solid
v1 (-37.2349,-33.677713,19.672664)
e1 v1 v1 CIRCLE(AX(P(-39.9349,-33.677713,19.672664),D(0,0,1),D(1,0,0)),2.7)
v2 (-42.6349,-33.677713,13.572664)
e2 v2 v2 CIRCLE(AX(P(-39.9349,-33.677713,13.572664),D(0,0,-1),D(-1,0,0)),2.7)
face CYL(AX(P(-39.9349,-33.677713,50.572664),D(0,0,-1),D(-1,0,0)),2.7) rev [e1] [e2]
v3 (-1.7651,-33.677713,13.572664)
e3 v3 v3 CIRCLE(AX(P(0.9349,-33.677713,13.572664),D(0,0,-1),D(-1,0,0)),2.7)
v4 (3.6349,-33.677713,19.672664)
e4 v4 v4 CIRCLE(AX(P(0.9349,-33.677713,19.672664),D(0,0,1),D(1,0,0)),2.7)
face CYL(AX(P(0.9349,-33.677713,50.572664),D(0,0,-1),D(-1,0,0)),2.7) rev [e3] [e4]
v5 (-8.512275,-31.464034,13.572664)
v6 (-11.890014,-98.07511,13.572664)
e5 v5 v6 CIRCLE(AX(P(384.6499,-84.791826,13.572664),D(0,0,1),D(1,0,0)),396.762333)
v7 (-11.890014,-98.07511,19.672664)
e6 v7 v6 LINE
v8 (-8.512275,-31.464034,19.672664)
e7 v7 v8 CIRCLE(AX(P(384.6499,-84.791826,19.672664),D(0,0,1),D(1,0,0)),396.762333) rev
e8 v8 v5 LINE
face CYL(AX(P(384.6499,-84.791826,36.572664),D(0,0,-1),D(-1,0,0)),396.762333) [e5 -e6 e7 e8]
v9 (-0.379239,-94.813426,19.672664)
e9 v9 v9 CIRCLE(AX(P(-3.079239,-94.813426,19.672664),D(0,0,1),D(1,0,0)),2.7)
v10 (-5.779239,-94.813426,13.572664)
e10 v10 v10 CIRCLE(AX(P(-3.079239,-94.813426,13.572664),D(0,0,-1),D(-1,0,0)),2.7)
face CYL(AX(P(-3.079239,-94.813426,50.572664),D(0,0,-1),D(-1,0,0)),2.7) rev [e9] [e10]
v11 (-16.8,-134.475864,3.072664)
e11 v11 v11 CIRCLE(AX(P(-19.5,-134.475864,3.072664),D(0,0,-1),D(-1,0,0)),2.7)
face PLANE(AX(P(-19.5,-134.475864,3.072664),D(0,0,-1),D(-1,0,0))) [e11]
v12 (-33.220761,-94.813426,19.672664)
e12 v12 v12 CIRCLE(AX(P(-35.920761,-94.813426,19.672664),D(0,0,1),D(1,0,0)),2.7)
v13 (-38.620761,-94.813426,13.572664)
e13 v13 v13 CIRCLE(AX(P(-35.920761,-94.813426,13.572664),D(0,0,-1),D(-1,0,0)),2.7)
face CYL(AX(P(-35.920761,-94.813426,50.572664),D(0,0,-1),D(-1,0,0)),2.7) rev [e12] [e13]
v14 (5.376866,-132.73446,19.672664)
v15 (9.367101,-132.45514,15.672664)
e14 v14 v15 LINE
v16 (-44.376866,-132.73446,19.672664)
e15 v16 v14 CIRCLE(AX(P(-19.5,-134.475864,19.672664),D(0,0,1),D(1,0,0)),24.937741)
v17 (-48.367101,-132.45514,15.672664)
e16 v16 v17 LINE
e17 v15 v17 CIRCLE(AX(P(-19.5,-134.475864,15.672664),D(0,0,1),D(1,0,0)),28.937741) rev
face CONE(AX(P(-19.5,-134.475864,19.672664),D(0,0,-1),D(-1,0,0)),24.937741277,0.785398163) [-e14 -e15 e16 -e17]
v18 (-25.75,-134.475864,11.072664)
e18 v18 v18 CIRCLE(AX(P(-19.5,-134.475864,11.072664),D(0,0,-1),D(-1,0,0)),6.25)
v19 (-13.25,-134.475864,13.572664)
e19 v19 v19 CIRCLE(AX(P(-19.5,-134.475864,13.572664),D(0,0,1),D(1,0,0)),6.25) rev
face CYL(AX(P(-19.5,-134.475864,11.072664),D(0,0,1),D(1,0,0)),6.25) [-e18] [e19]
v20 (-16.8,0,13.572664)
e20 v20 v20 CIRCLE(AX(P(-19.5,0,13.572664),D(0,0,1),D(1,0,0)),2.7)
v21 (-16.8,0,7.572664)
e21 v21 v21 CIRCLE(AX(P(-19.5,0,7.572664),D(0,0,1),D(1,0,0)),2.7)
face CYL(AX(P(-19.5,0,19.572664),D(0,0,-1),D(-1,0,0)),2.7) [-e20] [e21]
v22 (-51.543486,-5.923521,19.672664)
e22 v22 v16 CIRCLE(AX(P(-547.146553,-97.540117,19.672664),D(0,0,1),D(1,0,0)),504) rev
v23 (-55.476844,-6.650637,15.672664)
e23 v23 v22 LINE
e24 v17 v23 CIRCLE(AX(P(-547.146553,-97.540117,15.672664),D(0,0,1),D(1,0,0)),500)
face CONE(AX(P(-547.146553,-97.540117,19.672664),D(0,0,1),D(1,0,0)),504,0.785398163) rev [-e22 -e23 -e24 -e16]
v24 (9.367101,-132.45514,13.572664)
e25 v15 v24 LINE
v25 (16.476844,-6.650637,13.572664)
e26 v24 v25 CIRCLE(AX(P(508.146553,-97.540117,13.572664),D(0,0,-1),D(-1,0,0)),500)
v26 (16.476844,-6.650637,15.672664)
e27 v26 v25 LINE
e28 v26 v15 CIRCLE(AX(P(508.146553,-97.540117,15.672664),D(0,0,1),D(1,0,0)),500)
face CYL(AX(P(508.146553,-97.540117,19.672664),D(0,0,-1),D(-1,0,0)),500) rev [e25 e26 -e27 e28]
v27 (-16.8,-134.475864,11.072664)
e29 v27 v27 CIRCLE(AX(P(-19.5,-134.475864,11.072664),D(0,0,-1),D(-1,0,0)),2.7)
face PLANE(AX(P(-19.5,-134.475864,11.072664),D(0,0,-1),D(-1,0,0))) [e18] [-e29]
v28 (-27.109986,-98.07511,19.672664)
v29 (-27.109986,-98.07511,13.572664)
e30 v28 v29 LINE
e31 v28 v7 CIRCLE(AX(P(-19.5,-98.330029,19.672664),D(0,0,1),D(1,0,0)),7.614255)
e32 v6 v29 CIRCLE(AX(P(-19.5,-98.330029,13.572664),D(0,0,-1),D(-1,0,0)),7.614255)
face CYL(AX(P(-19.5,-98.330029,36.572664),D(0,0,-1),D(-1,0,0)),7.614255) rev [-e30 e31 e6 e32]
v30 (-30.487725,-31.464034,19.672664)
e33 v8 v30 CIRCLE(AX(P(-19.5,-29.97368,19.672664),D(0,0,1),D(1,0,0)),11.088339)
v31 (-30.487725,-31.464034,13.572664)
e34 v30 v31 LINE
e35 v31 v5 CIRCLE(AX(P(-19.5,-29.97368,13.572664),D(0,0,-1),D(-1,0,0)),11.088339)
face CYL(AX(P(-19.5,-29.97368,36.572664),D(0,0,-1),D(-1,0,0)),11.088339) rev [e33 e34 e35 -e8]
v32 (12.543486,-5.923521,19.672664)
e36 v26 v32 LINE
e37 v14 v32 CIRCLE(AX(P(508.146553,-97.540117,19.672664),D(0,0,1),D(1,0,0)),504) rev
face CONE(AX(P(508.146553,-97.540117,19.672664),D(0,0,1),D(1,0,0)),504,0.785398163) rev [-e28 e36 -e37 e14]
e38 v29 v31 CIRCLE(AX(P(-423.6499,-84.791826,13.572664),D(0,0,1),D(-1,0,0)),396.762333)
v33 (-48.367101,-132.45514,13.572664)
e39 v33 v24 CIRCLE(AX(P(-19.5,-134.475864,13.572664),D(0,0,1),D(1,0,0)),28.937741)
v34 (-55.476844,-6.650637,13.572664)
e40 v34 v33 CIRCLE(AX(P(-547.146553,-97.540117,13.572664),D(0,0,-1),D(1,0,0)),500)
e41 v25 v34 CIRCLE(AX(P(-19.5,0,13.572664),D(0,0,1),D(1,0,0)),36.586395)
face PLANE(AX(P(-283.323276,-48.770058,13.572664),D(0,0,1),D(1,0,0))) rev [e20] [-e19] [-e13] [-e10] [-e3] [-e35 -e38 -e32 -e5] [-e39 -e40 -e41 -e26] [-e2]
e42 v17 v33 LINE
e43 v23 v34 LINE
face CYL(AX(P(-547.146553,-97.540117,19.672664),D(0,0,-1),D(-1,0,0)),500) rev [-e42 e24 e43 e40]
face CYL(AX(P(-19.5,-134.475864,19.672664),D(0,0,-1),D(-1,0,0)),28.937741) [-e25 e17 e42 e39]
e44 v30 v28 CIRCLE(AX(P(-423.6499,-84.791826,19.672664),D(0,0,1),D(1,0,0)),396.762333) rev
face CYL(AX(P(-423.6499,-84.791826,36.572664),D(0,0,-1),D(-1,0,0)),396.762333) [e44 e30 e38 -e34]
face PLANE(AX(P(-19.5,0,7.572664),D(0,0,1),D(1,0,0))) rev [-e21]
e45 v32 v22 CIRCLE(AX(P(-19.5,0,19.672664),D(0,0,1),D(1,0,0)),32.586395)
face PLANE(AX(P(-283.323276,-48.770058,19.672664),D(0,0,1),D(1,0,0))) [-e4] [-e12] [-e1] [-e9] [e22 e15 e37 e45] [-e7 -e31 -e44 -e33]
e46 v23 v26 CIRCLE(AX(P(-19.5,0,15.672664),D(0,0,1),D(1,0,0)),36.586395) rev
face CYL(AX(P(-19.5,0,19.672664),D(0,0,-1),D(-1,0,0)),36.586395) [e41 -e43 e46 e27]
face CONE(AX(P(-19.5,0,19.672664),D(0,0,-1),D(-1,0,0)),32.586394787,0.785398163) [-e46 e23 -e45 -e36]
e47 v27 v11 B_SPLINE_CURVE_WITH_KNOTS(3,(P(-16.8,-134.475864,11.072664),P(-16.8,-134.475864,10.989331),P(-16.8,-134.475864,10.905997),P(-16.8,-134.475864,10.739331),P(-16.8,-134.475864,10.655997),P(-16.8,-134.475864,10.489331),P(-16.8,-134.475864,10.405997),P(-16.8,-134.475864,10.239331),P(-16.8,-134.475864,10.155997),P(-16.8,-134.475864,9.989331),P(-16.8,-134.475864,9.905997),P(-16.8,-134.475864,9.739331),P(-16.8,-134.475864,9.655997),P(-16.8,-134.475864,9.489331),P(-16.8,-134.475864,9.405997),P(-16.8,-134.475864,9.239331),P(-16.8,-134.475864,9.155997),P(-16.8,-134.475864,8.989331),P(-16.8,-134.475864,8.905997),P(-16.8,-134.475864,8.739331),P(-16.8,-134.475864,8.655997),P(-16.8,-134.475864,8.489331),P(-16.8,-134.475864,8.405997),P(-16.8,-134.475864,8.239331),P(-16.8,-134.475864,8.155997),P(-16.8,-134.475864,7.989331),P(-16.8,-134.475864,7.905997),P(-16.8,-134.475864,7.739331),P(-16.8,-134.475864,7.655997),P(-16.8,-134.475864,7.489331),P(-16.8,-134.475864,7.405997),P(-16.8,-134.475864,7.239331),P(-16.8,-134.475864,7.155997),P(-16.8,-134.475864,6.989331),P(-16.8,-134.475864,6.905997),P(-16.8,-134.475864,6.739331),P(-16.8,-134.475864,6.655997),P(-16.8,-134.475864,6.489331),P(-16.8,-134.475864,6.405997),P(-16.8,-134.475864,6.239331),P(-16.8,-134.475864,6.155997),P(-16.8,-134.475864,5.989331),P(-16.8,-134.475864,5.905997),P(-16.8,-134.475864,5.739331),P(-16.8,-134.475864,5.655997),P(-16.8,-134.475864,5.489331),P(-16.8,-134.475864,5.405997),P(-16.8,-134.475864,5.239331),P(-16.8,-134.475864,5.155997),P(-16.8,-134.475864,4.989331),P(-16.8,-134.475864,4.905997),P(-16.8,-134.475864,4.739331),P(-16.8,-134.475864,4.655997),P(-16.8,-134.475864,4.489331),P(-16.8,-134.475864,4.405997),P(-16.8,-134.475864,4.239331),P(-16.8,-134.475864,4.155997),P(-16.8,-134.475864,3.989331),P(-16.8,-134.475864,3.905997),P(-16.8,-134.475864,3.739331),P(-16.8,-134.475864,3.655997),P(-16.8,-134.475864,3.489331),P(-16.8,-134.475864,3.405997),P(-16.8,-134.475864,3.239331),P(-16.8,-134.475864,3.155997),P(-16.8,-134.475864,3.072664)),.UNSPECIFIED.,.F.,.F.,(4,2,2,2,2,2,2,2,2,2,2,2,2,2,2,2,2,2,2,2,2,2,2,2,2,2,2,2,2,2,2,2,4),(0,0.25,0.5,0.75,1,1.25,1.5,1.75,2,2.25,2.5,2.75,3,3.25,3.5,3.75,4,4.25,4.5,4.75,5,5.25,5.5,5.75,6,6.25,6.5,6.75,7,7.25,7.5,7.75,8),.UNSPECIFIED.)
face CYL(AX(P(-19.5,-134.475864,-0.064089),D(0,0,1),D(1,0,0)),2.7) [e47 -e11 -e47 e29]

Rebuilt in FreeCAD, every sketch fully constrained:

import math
import FreeCAD as App
import Part
import Sketcher
Q = App.Units.Quantity


def edges_at(feature, points):
    """Names of the edges that pass closest to the given points."""
    edges = feature.Shape.Edges
    near = lambda p: min(range(len(edges)), key=lambda i: edges[i].distToShape(Part.Vertex(*p))[0])
    return sorted({f"Edge{near(p) + 1}" for p in points})

doc = App.newDocument("Part")
body = doc.addObject("PartDesign::Body", "Body")

sketch1 = body.newObject("Sketcher::SketchObject", "Sketch")
sketch1.AttachmentSupport = (doc.getObject("XY_Plane"), [""])
sketch1.MapMode = "FlatFace"
sketch1.AttachmentOffset = App.Placement(App.Vector(0, 0, 12.572664), App.Rotation())
sketch1.addGeometry(Part.Circle(App.Vector(-19.5, 0, 0), App.Vector(0, 0, 1), 2.7), False)
sketch1.addConstraint([
    Sketcher.Constraint("PointOnObject", 0, 3, -1),
    Sketcher.Constraint("Diameter", 0, Q("5.4 mm")),
    Sketcher.Constraint("DistanceX", 0, 3, -1, 1, Q("19.5 mm")),
])
pad1 = body.newObject("PartDesign::Pad", "Pad")
pad1.Profile = sketch1
pad1.Type = "TwoLengths"
pad1.Length = 7
pad1.Length2 = 5

sketch2 = body.newObject("Sketcher::SketchObject", "Sketch001")
sketch2.AttachmentSupport = (doc.getObject("XY_Plane"), [""])
sketch2.MapMode = "FlatFace"
sketch2.AttachmentOffset = App.Placement(App.Vector(0, 0, 19.572664), App.Rotation())
sketch2.addGeometry([
    Part.ArcOfCircle(Part.Circle(App.Vector(-20, 0, 0), App.Vector(0, 0, 1), 37), math.radians(-10), math.radians(190)),
    Part.ArcOfCircle(Part.Circle(App.Vector(-547, -98, 0), App.Vector(0, 0, 1), 500), math.radians(-4), math.radians(10.47)),
    Part.ArcOfCircle(Part.Circle(App.Vector(-20, -134, 0), App.Vector(0, 0, 1), 29), math.radians(176), math.radians(364)),
    Part.ArcOfCircle(Part.Circle(App.Vector(508, -98, 0), App.Vector(0, 0, 1), 500), math.radians(169.53), math.radians(184)),
], False)
sketch2.addConstraint([
    Sketcher.Constraint("Tangent", 0, 2, 1, 2),
    Sketcher.Constraint("Tangent", 1, 1, 2, 1),
    Sketcher.Constraint("Tangent", 2, 2, 3, 2),
    Sketcher.Constraint("Tangent", 3, 1, 0, 1),
    Sketcher.Constraint("Equal", 1, 3),
    Sketcher.Constraint("PointOnObject", 0, 3, -1),
    Sketcher.Constraint("Horizontal", 1, 3, 3, 3),
    Sketcher.Constraint("Radius", 1, Q("500 mm")),
    Sketcher.Constraint("DistanceX", 0, 3, -1, 1, Q("19.5 mm")),
    Sketcher.Constraint("Radius", 2, Q("28.937741 mm")),
    Sketcher.Constraint("Radius", 0, Q("36.586395 mm")),
    Sketcher.Constraint("DistanceY", 2, 2, -1, 1, Q("132.45514 mm")),
])
pad2 = body.newObject("PartDesign::Pad", "Pad001")
pad2.Profile = sketch2
pad2.Type = "TwoLengths"
pad2.Length = 0.1
pad2.Length2 = 6
doc.recompute()

chamfer = body.newObject("PartDesign::Chamfer", "Chamfer")
chamfer.Base = (pad2, edges_at(pad2, [
    (-47.943, -69.328, 19.673),
    (-19.5, -163.414, 19.673),
    (8.943, -69.328, 19.673),
    (-19.5, 36.586, 19.673),
]))
chamfer.Size = 4

sketch3 = body.newObject("Sketcher::SketchObject", "Sketch002")
sketch3.AttachmentSupport = (doc.getObject("XY_Plane"), [""])
sketch3.MapMode = "FlatFace"
sketch3.AttachmentOffset = App.Placement(App.Vector(0, 0, 13.572664), App.Rotation())
sketch3.addGeometry(Part.Circle(App.Vector(-19.5, -134.5, 0), App.Vector(0, 0, 1), 2.7), False)
sketch3.addConstraint([
    Sketcher.Constraint("Diameter", 0, Q("5.4 mm")),
    Sketcher.Constraint("DistanceX", 0, 3, -1, 1, Q("19.5 mm")),
    Sketcher.Constraint("DistanceY", 0, 3, -1, 1, Q("134.475864 mm")),
])
pad3 = body.newObject("PartDesign::Pad", "Pad002")
pad3.Profile = sketch3
pad3.Length = 6
pad3.Reversed = True

sketch4 = body.newObject("Sketcher::SketchObject", "Sketch003")
sketch4.AttachmentSupport = (doc.getObject("XY_Plane"), [""])
sketch4.MapMode = "FlatFace"
sketch4.AttachmentOffset = App.Placement(App.Vector(0, 0, 13.572664), App.Rotation())
sketch4.addGeometry([
    Part.ArcOfCircle(Part.Circle(App.Vector(-20, -30, 0), App.Vector(0, 0, 1), 11), math.radians(-8), math.radians(188)),
    Part.ArcOfCircle(Part.Circle(App.Vector(385, -85, 0), App.Vector(0, 0, 1), 397), math.radians(172.28), math.radians(181.92)),
    Part.ArcOfCircle(Part.Circle(App.Vector(-20, -98, 0), App.Vector(0, 0, 1), 8), math.radians(178), math.radians(362)),
    Part.ArcOfCircle(Part.Circle(App.Vector(-424, -85, 0), App.Vector(0, 0, 1), 397), math.radians(-1.92), math.radians(7.72)),
], False)
sketch4.addConstraint([
    Sketcher.Constraint("Tangent", 0, 1, 1, 1),
    Sketcher.Constraint("Tangent", 1, 2, 2, 2),
    Sketcher.Constraint("Tangent", 2, 1, 3, 1),
    Sketcher.Constraint("Tangent", 3, 2, 0, 2),
    Sketcher.Constraint("Equal", 1, 3),
    Sketcher.Constraint("Horizontal", 1, 3, 3, 3),
    Sketcher.Constraint("DistanceX", 0, 3, -1, 1, Q("19.5 mm")),
    Sketcher.Constraint("Radius", 0, Q("11.088339 mm")),
    Sketcher.Constraint("Radius", 1, Q("396.762333 mm")),
    Sketcher.Constraint("Radius", 2, Q("7.614255 mm")),
    Sketcher.Constraint("DistanceX", -1, 1, 1, 3, Q("384.6499 mm")),
    Sketcher.Constraint("DistanceY", 0, 3, -1, 1, Q("29.97368 mm")),
])
pocket1 = body.newObject("PartDesign::Pocket", "Pocket")
pocket1.Profile = sketch4
pocket1.Length = 23
pocket1.Reversed = True

sketch5 = body.newObject("Sketcher::SketchObject", "Sketch004")
sketch5.AttachmentSupport = (doc.getObject("XY_Plane"), [""])
sketch5.MapMode = "FlatFace"
sketch5.AttachmentOffset = App.Placement(App.Vector(0, 0, 13.572664), App.Rotation())
sketch5.addGeometry([
    Part.Circle(App.Vector(-39.9, -33.7, 0), App.Vector(0, 0, 1), 2.7),
    Part.Circle(App.Vector(-35.9, -94.8, 0), App.Vector(0, 0, 1), 2.7),
    Part.Circle(App.Vector(0.9, -33.7, 0), App.Vector(0, 0, 1), 2.7),
    Part.Circle(App.Vector(-3.1, -94.8, 0), App.Vector(0, 0, 1), 2.7),
], False)
sketch5.addConstraint([
    Sketcher.Constraint("Equal", 0, 1),
    Sketcher.Constraint("Equal", 1, 2),
    Sketcher.Constraint("Equal", 2, 3),
    Sketcher.Constraint("Horizontal", 0, 3, 2, 3),
    Sketcher.Constraint("Horizontal", 1, 3, 3, 3),
    Sketcher.Constraint("Diameter", 0, Q("5.4 mm")),
    Sketcher.Constraint("DistanceX", 0, 3, -1, 1, Q("39.9349 mm")),
    Sketcher.Constraint("DistanceX", -1, 1, 2, 3, Q("0.9349 mm")),
    Sketcher.Constraint("DistanceX", 1, 3, -1, 1, Q("35.920761 mm")),
    Sketcher.Constraint("DistanceX", 3, 3, -1, 1, Q("3.079239 mm")),
    Sketcher.Constraint("DistanceY", 0, 3, -1, 1, Q("33.677713 mm")),
    Sketcher.Constraint("DistanceY", 1, 3, -1, 1, Q("94.813426 mm")),
])
pocket2 = body.newObject("PartDesign::Pocket", "Pocket001")
pocket2.Profile = sketch5
pocket2.Length = 37
pocket2.Reversed = True

sketch6 = body.newObject("Sketcher::SketchObject", "Sketch005")
sketch6.AttachmentSupport = (doc.getObject("XY_Plane"), [""])
sketch6.MapMode = "FlatFace"
sketch6.AttachmentOffset = App.Placement(App.Vector(0, 0, 13.572664), App.Rotation())
sketch6.addGeometry(Part.Circle(App.Vector(-20, -134, 0), App.Vector(0, 0, 1), 6), False)
sketch6.addConstraint([
    Sketcher.Constraint("Diameter", 0, Q("12.5 mm")),
    Sketcher.Constraint("DistanceX", 0, 3, -1, 1, Q("19.5 mm")),
    Sketcher.Constraint("DistanceY", 0, 3, -1, 1, Q("134.475864 mm")),
])
pad4 = body.newObject("PartDesign::Pad", "Pad003")
pad4.Profile = sketch6
pad4.Length = 2.5
pad4.Reversed = True

sketch7 = body.newObject("Sketcher::SketchObject", "Sketch006")
sketch7.AttachmentSupport = (doc.getObject("XY_Plane"), [""])
sketch7.MapMode = "FlatFace"
sketch7.AttachmentOffset = App.Placement(App.Vector(0, 0, 7.572664), App.Rotation())
sketch7.addGeometry(Part.Circle(App.Vector(-19.5, -134.5, 0), App.Vector(0, 0, 1), 2.7), False)
sketch7.addConstraint([
    Sketcher.Constraint("Diameter", 0, Q("5.4 mm")),
    Sketcher.Constraint("DistanceX", 0, 3, -1, 1, Q("19.5 mm")),
    Sketcher.Constraint("DistanceY", 0, 3, -1, 1, Q("134.475864 mm")),
])
pad5 = body.newObject("PartDesign::Pad", "Pad004")
pad5.Profile = sketch7
pad5.Length = 4.5
pad5.Reversed = True

doc.recompute()
